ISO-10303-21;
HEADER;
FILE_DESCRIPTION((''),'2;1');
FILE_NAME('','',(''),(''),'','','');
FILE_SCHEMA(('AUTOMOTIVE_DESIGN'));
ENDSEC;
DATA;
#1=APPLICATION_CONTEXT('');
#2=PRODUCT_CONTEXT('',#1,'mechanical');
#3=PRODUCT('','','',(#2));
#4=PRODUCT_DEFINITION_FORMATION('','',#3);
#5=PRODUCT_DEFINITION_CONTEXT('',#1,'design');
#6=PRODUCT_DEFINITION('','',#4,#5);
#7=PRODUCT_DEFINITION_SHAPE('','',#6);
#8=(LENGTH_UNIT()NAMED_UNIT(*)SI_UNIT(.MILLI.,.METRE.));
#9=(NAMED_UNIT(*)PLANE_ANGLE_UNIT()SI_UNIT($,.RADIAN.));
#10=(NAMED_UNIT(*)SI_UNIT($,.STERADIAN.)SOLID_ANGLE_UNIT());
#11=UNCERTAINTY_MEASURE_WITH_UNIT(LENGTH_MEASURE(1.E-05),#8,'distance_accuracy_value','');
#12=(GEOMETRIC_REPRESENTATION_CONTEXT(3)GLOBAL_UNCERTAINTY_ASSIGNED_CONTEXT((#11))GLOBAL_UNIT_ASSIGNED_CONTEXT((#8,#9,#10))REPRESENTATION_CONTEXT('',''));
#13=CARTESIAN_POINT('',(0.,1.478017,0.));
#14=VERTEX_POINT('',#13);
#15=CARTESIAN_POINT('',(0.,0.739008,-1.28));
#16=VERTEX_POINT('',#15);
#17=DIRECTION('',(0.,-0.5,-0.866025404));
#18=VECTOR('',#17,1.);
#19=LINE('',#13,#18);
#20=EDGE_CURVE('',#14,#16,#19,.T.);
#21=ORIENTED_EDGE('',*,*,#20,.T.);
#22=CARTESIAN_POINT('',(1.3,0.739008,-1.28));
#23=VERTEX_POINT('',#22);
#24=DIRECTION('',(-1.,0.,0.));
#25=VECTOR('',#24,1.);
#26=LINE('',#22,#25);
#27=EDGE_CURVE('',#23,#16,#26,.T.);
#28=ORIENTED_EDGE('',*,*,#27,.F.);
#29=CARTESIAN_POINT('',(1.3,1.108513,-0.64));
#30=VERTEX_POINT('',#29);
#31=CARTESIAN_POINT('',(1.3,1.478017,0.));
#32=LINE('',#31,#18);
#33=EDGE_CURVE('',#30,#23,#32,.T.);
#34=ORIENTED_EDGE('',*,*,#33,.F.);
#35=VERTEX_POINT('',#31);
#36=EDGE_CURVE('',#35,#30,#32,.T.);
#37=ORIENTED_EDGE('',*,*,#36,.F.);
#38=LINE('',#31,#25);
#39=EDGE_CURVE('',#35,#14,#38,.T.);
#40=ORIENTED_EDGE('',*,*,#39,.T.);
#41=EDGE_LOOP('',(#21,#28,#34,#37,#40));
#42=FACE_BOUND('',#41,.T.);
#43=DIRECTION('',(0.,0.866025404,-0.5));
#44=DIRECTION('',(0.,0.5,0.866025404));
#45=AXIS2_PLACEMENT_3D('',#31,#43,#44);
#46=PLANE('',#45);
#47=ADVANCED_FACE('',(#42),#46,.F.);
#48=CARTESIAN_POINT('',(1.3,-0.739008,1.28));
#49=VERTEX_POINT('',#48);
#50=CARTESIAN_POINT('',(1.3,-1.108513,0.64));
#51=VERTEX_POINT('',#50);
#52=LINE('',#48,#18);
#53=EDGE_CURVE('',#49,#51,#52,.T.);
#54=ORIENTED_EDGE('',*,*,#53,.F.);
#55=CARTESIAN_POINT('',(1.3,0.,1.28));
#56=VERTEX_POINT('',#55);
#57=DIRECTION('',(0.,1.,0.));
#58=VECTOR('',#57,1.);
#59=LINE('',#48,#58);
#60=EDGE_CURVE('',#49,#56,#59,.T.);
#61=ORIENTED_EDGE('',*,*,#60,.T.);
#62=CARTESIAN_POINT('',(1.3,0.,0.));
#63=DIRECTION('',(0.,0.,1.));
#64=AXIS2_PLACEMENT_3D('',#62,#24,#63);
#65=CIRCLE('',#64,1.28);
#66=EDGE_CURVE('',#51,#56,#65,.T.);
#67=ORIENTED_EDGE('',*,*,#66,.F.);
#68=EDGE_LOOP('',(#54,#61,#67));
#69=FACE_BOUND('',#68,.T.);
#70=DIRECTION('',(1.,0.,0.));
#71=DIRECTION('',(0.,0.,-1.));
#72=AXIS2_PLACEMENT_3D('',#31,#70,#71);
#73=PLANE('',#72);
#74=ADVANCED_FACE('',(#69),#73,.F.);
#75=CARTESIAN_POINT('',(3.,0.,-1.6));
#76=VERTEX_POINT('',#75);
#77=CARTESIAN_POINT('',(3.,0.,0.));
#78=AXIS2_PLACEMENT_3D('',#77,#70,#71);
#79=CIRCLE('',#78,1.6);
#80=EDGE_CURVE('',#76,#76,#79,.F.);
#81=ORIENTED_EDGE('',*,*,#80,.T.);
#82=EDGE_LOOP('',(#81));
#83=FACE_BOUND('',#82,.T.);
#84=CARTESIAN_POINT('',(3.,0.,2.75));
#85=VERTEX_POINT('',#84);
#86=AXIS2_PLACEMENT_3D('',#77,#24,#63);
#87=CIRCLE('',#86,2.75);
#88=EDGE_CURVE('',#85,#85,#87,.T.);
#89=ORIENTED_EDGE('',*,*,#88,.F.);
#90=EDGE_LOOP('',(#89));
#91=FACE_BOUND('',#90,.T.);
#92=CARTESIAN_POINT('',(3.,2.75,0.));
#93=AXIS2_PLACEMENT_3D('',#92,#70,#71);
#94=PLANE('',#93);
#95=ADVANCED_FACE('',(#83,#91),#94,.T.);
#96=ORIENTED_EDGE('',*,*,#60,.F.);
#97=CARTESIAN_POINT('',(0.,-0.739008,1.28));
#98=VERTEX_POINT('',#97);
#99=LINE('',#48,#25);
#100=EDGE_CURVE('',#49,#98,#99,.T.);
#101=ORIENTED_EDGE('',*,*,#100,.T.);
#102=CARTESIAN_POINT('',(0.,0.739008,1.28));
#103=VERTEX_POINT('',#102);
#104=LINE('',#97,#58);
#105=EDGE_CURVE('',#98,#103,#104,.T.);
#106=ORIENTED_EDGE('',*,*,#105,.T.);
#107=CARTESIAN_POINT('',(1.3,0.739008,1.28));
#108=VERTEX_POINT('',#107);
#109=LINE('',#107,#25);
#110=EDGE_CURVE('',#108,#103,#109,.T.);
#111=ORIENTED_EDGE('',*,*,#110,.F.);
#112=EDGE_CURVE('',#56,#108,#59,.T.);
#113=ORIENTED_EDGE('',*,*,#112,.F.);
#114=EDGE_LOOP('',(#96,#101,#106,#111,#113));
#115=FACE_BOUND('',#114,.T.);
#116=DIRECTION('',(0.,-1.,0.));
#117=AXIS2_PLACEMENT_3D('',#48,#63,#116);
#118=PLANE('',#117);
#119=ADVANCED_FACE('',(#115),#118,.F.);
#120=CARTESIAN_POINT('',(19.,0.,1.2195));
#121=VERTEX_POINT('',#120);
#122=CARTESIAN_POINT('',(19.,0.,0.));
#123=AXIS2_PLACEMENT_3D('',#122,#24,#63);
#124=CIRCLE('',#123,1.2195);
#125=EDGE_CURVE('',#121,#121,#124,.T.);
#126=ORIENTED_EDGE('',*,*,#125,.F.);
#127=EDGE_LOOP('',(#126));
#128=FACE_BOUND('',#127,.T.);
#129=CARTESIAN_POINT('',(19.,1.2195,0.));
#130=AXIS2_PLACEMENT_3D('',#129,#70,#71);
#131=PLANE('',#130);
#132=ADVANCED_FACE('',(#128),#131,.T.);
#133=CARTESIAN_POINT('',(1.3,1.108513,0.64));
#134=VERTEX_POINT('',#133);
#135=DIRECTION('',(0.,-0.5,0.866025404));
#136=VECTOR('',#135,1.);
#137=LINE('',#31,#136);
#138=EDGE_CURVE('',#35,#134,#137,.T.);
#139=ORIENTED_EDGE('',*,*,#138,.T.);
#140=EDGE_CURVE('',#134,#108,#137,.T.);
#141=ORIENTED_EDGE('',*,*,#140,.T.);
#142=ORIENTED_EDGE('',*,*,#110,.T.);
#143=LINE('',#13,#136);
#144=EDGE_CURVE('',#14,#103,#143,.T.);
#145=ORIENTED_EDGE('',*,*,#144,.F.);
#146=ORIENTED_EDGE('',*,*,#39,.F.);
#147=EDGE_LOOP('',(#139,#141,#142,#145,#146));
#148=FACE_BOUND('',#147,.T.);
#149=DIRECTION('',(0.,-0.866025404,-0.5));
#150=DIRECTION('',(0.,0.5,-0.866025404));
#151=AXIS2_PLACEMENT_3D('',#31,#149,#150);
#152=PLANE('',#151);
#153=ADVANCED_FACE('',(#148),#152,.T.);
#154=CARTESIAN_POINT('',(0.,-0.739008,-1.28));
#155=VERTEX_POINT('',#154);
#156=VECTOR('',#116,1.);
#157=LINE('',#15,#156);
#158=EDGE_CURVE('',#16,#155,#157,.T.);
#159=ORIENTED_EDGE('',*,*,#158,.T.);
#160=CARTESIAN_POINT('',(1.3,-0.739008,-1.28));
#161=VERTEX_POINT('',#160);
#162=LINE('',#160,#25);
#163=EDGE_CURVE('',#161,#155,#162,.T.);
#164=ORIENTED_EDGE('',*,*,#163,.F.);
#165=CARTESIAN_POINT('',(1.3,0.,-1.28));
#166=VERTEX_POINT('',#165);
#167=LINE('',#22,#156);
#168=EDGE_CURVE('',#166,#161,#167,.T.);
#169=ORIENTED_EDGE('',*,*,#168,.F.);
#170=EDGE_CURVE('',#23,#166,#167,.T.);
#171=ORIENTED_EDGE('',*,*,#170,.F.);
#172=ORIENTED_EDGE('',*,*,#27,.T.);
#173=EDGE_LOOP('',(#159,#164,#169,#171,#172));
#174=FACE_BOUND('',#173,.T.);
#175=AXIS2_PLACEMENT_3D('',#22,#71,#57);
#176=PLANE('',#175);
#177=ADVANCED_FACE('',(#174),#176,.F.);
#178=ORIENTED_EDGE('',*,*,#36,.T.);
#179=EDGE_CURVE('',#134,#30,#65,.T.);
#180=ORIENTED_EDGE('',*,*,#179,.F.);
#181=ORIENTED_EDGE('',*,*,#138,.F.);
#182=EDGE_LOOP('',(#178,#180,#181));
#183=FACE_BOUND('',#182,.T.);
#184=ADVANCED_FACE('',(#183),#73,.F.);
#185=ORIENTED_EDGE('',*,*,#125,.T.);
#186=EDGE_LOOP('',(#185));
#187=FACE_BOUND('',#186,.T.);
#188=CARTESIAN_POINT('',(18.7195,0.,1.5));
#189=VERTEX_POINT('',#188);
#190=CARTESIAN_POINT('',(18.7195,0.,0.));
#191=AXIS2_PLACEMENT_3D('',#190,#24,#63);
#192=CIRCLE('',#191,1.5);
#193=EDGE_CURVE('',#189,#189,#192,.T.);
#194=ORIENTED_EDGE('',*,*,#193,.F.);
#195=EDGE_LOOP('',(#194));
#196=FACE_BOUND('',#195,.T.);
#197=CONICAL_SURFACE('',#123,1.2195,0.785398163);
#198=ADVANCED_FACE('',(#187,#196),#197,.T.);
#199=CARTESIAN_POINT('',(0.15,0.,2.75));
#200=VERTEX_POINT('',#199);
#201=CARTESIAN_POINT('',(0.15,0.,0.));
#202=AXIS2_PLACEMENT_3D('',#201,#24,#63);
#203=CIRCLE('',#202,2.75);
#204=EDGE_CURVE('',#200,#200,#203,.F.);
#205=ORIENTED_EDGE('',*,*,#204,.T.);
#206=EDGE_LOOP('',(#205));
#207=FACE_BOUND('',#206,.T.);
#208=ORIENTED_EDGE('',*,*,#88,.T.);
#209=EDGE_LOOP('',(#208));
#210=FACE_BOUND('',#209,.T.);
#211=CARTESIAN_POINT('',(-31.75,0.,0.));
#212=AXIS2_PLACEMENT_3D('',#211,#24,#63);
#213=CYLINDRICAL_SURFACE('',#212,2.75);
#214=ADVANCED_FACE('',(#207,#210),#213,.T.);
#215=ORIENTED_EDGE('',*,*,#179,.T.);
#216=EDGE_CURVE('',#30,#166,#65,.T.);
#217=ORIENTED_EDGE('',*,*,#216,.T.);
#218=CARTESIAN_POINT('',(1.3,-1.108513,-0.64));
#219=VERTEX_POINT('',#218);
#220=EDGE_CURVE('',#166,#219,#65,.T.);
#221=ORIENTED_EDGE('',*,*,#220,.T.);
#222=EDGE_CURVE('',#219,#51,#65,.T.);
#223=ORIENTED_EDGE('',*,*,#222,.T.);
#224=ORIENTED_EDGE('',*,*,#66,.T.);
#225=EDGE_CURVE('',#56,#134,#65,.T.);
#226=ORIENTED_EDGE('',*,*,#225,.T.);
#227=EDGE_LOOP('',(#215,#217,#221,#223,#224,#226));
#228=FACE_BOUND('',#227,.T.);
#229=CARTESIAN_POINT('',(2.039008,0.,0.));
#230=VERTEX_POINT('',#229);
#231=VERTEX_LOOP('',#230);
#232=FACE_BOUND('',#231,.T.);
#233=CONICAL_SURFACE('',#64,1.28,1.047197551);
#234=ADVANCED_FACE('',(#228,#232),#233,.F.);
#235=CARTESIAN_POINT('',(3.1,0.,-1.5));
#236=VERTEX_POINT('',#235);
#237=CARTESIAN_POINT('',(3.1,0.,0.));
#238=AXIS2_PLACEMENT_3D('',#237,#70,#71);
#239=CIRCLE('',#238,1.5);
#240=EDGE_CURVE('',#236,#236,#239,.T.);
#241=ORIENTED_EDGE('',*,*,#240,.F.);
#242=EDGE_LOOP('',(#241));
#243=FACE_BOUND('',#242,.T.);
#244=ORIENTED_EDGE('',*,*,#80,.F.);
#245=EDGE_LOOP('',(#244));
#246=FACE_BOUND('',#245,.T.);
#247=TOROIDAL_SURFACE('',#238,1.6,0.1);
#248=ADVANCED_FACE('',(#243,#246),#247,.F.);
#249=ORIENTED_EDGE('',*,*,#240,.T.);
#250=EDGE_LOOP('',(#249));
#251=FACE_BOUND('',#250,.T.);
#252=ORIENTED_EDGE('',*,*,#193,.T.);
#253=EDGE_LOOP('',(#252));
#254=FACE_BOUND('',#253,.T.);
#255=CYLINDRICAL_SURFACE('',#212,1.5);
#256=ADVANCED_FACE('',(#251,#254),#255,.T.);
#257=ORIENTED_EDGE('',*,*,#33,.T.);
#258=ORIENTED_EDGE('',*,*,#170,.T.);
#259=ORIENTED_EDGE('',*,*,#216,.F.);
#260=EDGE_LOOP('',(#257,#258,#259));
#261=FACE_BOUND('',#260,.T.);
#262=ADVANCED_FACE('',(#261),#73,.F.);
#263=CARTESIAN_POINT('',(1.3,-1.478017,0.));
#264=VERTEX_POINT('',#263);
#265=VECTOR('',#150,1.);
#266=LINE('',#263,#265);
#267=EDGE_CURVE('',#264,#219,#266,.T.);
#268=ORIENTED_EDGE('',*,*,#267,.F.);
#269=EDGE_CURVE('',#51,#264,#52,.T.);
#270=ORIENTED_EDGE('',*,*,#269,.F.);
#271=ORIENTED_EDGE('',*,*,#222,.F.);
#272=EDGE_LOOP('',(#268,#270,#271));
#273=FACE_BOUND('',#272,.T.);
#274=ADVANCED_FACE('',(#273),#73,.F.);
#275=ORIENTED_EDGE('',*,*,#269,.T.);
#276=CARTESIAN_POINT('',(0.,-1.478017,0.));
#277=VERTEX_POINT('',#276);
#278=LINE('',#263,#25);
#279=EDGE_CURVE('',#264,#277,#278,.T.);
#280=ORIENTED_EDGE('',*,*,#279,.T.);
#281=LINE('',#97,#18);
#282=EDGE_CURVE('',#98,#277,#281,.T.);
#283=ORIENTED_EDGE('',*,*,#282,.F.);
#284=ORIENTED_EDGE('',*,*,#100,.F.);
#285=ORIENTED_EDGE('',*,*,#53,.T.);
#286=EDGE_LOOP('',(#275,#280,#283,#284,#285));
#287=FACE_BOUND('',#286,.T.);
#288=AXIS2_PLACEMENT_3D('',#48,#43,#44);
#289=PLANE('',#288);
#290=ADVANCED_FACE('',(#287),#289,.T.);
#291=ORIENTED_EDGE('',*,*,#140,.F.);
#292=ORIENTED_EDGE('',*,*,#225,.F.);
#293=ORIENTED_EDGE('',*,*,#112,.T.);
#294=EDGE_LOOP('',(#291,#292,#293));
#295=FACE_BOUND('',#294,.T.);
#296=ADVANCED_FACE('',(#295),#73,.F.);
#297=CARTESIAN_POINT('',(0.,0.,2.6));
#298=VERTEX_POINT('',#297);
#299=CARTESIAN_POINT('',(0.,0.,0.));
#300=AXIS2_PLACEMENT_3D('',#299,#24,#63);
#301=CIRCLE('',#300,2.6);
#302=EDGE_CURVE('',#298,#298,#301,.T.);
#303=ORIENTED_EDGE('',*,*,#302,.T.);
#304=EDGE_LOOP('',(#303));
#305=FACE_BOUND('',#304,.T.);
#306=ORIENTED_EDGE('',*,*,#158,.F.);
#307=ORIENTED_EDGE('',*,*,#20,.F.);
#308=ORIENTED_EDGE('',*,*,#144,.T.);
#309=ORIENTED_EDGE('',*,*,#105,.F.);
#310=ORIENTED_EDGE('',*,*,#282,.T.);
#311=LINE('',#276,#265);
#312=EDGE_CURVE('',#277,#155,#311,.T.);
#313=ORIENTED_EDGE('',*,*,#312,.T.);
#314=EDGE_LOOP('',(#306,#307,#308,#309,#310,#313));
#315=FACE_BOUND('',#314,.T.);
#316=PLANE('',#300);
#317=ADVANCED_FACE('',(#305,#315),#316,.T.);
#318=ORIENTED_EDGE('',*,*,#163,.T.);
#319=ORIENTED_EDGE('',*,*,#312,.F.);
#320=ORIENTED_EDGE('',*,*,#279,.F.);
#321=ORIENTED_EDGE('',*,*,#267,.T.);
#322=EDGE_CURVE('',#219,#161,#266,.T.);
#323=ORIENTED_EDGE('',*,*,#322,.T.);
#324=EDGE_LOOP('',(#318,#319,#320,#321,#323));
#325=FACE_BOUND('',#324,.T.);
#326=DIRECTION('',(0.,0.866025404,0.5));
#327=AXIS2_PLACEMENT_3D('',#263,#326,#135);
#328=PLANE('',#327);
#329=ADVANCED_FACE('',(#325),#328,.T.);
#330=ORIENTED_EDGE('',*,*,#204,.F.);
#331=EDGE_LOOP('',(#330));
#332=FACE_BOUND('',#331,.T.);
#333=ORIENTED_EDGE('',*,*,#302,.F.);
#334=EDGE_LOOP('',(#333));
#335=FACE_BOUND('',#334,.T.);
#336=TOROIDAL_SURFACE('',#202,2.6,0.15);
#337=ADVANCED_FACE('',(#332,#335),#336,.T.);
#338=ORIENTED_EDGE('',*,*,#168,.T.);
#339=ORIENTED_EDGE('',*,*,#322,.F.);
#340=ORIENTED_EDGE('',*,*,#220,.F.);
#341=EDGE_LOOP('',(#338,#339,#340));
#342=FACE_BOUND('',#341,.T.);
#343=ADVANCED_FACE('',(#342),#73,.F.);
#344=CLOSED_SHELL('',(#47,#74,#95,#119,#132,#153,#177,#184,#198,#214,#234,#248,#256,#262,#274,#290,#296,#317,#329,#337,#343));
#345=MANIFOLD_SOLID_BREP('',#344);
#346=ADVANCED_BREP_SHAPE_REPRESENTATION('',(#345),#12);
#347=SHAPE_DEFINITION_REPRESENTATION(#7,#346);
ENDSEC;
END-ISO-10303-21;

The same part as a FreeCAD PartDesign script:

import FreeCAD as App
import Part
import Sketcher
Q = App.Units.Quantity


def edges_at(feature, points):
    """Names of the edges that pass closest to the given points."""
    edges = feature.Shape.Edges
    near = lambda p: min(range(len(edges)), key=lambda i: edges[i].distToShape(Part.Vertex(*p))[0])
    return sorted({f"Edge{near(p) + 1}" for p in points})

doc = App.newDocument("Part")
body = doc.addObject("PartDesign::Body", "Body")

# Sketch on XY plane
sketch1 = doc.addObject("Sketcher::SketchObject", "Sketch")
body.addObject(sketch1)
sketch1.AttachmentSupport = (doc.XY_Plane, [""])
sketch1.MapMode = "FlatFace"
sketch1.addGeometry(Part.LineSegment(App.Vector(0, 2.75, 0), App.Vector(0, 0, 0)), False)
sketch1.addGeometry(Part.LineSegment(App.Vector(0, 0, 0), App.Vector(19, 0, 0)), False)
sketch1.addGeometry(Part.LineSegment(App.Vector(19, 0, 0), App.Vector(19, 1.22, 0)), False)
sketch1.addGeometry(Part.LineSegment(App.Vector(19, 1.22, 0), App.Vector(18.72, 1.5, 0)), False)
sketch1.addGeometry(Part.LineSegment(App.Vector(18.72, 1.5, 0), App.Vector(3, 1.5, 0)), False)
sketch1.addGeometry(Part.LineSegment(App.Vector(3, 1.5, 0), App.Vector(3, 2.75, 0)), False)
sketch1.addGeometry(Part.LineSegment(App.Vector(3, 2.75, 0), App.Vector(0, 2.75, 0)), False)
sketch1.addConstraint(Sketcher.Constraint("Coincident", 0, 2, 1, 1))
sketch1.addConstraint(Sketcher.Constraint("Coincident", 1, 2, 2, 1))
sketch1.addConstraint(Sketcher.Constraint("Coincident", 2, 2, 3, 1))
sketch1.addConstraint(Sketcher.Constraint("Coincident", 3, 2, 4, 1))
sketch1.addConstraint(Sketcher.Constraint("Coincident", 4, 2, 5, 1))
sketch1.addConstraint(Sketcher.Constraint("Coincident", 5, 2, 6, 1))
sketch1.addConstraint(Sketcher.Constraint("Coincident", 6, 2, 0, 1))
sketch1.addConstraint(Sketcher.Constraint("Vertical", 0))
sketch1.addConstraint(Sketcher.Constraint("Horizontal", 1))
sketch1.addConstraint(Sketcher.Constraint("Vertical", 2))
sketch1.addConstraint(Sketcher.Constraint("Horizontal", 4))
sketch1.addConstraint(Sketcher.Constraint("Vertical", 5))
sketch1.addConstraint(Sketcher.Constraint("Horizontal", 6))
sketch1.addConstraint(Sketcher.Constraint("Coincident", 0, 2, -1, 1))
sketch1.addConstraint(Sketcher.Constraint("DistanceX", 1, 1, 1, 2, 19.0))
sketch1.addConstraint(Sketcher.Constraint("DistanceX", 6, 2, 6, 1, 3.0))
sketch1.addConstraint(Sketcher.Constraint("Angle", 3, Q("135 deg")))
sketch1.addConstraint(Sketcher.Constraint("DistanceY", 0, 2, 0, 1, 2.75))
sketch1.addConstraint(Sketcher.Constraint("DistanceY", 5, 1, 5, 2, 1.25))
sketch1.addConstraint(Sketcher.Constraint("DistanceX", 4, 2, 4, 1, 15.7195))
revolution = doc.addObject("PartDesign::Revolution", "Revolution")
body.addObject(revolution)
revolution.Profile = sketch1
revolution.ReferenceAxis = (sketch1, ["H_Axis"])
revolution.Angle = 360
doc.recompute()

fillet = doc.addObject("PartDesign::Fillet", "Fillet")
body.addObject(fillet)
fillet.Base = (revolution, edges_at(revolution, [(3, 0, -1.5)]))
fillet.Radius = 0.1
doc.recompute()

fillet2 = doc.addObject("PartDesign::Fillet", "Fillet001")
body.addObject(fillet2)
fillet2.Base = (fillet, edges_at(fillet, [(0, 0, -2.75)]))
fillet2.Radius = 0.15

# Sketch on XY plane
sketch2 = doc.addObject("Sketcher::SketchObject", "Sketch001")
body.addObject(sketch2)
sketch2.AttachmentSupport = (doc.XY_Plane, [""])
sketch2.MapMode = "FlatFace"
sketch2.addGeometry(Part.LineSegment(App.Vector(1.3, 1.3, 0), App.Vector(0, 1.3, 0)), False)
sketch2.addGeometry(Part.LineSegment(App.Vector(0, 1.3, 0), App.Vector(0, 0, 0)), False)
sketch2.addGeometry(Part.LineSegment(App.Vector(0, 0, 0), App.Vector(2, 0, 0)), False)
sketch2.addGeometry(Part.LineSegment(App.Vector(2, 0, 0), App.Vector(1.3, 1.3, 0)), False)
sketch2.addConstraint(Sketcher.Constraint("Coincident", 0, 2, 1, 1))
sketch2.addConstraint(Sketcher.Constraint("Coincident", 1, 2, 2, 1))
sketch2.addConstraint(Sketcher.Constraint("Coincident", 2, 2, 3, 1))
sketch2.addConstraint(Sketcher.Constraint("Coincident", 3, 2, 0, 1))
sketch2.addConstraint(Sketcher.Constraint("Horizontal", 0))
sketch2.addConstraint(Sketcher.Constraint("Vertical", 1))
sketch2.addConstraint(Sketcher.Constraint("Horizontal", 2))
sketch2.addConstraint(Sketcher.Constraint("Coincident", 1, 2, -1, 1))
sketch2.addConstraint(Sketcher.Constraint("Angle", 3, Q("120 deg")))
sketch2.addConstraint(Sketcher.Constraint("DistanceX", 0, 2, 0, 1, 1.3))
sketch2.addConstraint(Sketcher.Constraint("DistanceY", 1, 2, 1, 1, 1.28))
groove = doc.addObject("PartDesign::Groove", "Groove")
body.addObject(groove)
groove.Profile = sketch2
groove.ReferenceAxis = (sketch2, ["H_Axis"])
groove.Angle = 360

# Sketch on YZ plane
sketch3 = doc.addObject("Sketcher::SketchObject", "Sketch002")
body.addObject(sketch3)
sketch3.AttachmentSupport = (doc.YZ_Plane, [""])
sketch3.MapMode = "FlatFace"
sketch3.addGeometry(Part.LineSegment(App.Vector(1.5, 0, 0), App.Vector(0.7, -1.3, 0)), False)
sketch3.addGeometry(Part.LineSegment(App.Vector(0.7, -1.3, 0), App.Vector(-0.7, -1.3, 0)), False)
sketch3.addGeometry(Part.LineSegment(App.Vector(-0.7, -1.3, 0), App.Vector(-1.5, 0, 0)), False)
sketch3.addGeometry(Part.LineSegment(App.Vector(-1.5, 0, 0), App.Vector(-0.7, 1.3, 0)), False)
sketch3.addGeometry(Part.LineSegment(App.Vector(-0.7, 1.3, 0), App.Vector(0.7, 1.3, 0)), False)
sketch3.addGeometry(Part.LineSegment(App.Vector(0.7, 1.3, 0), App.Vector(1.5, 0, 0)), False)
sketch3.addConstraint(Sketcher.Constraint("Coincident", 0, 2, 1, 1))
sketch3.addConstraint(Sketcher.Constraint("Coincident", 1, 2, 2, 1))
sketch3.addConstraint(Sketcher.Constraint("Coincident", 2, 2, 3, 1))
sketch3.addConstraint(Sketcher.Constraint("Coincident", 3, 2, 4, 1))
sketch3.addConstraint(Sketcher.Constraint("Coincident", 4, 2, 5, 1))
sketch3.addConstraint(Sketcher.Constraint("Coincident", 5, 2, 0, 1))
sketch3.addConstraint(Sketcher.Constraint("Horizontal", 1))
sketch3.addConstraint(Sketcher.Constraint("Horizontal", 4))
sketch3.addConstraint(Sketcher.Constraint("Symmetric", 0, 2, 3, 2, -1, 1))
sketch3.addConstraint(Sketcher.Constraint("Symmetric", 2, 2, 5, 2, -1, 1))
sketch3.addConstraint(Sketcher.Constraint("PointOnObject", 2, 2, -1))
sketch3.addConstraint(Sketcher.Constraint("Parallel", 2, 5))
sketch3.addConstraint(Sketcher.Constraint("Vertical", 1, 2, 3, 2))
sketch3.addConstraint(Sketcher.Constraint("Angle", 0, Q("-120 deg")))
sketch3.addConstraint(Sketcher.Constraint("DistanceY", 0, 2, -1, 1, 1.28))
sketch3.addConstraint(Sketcher.Constraint("DistanceX", 1, 2, 1, 1, 1.478017))
pocket1 = doc.addObject("PartDesign::Pocket", "Pocket")
body.addObject(pocket1)
pocket1.Profile = sketch3
pocket1.Length = 1.3
pocket1.Reversed = True

doc.recompute()
